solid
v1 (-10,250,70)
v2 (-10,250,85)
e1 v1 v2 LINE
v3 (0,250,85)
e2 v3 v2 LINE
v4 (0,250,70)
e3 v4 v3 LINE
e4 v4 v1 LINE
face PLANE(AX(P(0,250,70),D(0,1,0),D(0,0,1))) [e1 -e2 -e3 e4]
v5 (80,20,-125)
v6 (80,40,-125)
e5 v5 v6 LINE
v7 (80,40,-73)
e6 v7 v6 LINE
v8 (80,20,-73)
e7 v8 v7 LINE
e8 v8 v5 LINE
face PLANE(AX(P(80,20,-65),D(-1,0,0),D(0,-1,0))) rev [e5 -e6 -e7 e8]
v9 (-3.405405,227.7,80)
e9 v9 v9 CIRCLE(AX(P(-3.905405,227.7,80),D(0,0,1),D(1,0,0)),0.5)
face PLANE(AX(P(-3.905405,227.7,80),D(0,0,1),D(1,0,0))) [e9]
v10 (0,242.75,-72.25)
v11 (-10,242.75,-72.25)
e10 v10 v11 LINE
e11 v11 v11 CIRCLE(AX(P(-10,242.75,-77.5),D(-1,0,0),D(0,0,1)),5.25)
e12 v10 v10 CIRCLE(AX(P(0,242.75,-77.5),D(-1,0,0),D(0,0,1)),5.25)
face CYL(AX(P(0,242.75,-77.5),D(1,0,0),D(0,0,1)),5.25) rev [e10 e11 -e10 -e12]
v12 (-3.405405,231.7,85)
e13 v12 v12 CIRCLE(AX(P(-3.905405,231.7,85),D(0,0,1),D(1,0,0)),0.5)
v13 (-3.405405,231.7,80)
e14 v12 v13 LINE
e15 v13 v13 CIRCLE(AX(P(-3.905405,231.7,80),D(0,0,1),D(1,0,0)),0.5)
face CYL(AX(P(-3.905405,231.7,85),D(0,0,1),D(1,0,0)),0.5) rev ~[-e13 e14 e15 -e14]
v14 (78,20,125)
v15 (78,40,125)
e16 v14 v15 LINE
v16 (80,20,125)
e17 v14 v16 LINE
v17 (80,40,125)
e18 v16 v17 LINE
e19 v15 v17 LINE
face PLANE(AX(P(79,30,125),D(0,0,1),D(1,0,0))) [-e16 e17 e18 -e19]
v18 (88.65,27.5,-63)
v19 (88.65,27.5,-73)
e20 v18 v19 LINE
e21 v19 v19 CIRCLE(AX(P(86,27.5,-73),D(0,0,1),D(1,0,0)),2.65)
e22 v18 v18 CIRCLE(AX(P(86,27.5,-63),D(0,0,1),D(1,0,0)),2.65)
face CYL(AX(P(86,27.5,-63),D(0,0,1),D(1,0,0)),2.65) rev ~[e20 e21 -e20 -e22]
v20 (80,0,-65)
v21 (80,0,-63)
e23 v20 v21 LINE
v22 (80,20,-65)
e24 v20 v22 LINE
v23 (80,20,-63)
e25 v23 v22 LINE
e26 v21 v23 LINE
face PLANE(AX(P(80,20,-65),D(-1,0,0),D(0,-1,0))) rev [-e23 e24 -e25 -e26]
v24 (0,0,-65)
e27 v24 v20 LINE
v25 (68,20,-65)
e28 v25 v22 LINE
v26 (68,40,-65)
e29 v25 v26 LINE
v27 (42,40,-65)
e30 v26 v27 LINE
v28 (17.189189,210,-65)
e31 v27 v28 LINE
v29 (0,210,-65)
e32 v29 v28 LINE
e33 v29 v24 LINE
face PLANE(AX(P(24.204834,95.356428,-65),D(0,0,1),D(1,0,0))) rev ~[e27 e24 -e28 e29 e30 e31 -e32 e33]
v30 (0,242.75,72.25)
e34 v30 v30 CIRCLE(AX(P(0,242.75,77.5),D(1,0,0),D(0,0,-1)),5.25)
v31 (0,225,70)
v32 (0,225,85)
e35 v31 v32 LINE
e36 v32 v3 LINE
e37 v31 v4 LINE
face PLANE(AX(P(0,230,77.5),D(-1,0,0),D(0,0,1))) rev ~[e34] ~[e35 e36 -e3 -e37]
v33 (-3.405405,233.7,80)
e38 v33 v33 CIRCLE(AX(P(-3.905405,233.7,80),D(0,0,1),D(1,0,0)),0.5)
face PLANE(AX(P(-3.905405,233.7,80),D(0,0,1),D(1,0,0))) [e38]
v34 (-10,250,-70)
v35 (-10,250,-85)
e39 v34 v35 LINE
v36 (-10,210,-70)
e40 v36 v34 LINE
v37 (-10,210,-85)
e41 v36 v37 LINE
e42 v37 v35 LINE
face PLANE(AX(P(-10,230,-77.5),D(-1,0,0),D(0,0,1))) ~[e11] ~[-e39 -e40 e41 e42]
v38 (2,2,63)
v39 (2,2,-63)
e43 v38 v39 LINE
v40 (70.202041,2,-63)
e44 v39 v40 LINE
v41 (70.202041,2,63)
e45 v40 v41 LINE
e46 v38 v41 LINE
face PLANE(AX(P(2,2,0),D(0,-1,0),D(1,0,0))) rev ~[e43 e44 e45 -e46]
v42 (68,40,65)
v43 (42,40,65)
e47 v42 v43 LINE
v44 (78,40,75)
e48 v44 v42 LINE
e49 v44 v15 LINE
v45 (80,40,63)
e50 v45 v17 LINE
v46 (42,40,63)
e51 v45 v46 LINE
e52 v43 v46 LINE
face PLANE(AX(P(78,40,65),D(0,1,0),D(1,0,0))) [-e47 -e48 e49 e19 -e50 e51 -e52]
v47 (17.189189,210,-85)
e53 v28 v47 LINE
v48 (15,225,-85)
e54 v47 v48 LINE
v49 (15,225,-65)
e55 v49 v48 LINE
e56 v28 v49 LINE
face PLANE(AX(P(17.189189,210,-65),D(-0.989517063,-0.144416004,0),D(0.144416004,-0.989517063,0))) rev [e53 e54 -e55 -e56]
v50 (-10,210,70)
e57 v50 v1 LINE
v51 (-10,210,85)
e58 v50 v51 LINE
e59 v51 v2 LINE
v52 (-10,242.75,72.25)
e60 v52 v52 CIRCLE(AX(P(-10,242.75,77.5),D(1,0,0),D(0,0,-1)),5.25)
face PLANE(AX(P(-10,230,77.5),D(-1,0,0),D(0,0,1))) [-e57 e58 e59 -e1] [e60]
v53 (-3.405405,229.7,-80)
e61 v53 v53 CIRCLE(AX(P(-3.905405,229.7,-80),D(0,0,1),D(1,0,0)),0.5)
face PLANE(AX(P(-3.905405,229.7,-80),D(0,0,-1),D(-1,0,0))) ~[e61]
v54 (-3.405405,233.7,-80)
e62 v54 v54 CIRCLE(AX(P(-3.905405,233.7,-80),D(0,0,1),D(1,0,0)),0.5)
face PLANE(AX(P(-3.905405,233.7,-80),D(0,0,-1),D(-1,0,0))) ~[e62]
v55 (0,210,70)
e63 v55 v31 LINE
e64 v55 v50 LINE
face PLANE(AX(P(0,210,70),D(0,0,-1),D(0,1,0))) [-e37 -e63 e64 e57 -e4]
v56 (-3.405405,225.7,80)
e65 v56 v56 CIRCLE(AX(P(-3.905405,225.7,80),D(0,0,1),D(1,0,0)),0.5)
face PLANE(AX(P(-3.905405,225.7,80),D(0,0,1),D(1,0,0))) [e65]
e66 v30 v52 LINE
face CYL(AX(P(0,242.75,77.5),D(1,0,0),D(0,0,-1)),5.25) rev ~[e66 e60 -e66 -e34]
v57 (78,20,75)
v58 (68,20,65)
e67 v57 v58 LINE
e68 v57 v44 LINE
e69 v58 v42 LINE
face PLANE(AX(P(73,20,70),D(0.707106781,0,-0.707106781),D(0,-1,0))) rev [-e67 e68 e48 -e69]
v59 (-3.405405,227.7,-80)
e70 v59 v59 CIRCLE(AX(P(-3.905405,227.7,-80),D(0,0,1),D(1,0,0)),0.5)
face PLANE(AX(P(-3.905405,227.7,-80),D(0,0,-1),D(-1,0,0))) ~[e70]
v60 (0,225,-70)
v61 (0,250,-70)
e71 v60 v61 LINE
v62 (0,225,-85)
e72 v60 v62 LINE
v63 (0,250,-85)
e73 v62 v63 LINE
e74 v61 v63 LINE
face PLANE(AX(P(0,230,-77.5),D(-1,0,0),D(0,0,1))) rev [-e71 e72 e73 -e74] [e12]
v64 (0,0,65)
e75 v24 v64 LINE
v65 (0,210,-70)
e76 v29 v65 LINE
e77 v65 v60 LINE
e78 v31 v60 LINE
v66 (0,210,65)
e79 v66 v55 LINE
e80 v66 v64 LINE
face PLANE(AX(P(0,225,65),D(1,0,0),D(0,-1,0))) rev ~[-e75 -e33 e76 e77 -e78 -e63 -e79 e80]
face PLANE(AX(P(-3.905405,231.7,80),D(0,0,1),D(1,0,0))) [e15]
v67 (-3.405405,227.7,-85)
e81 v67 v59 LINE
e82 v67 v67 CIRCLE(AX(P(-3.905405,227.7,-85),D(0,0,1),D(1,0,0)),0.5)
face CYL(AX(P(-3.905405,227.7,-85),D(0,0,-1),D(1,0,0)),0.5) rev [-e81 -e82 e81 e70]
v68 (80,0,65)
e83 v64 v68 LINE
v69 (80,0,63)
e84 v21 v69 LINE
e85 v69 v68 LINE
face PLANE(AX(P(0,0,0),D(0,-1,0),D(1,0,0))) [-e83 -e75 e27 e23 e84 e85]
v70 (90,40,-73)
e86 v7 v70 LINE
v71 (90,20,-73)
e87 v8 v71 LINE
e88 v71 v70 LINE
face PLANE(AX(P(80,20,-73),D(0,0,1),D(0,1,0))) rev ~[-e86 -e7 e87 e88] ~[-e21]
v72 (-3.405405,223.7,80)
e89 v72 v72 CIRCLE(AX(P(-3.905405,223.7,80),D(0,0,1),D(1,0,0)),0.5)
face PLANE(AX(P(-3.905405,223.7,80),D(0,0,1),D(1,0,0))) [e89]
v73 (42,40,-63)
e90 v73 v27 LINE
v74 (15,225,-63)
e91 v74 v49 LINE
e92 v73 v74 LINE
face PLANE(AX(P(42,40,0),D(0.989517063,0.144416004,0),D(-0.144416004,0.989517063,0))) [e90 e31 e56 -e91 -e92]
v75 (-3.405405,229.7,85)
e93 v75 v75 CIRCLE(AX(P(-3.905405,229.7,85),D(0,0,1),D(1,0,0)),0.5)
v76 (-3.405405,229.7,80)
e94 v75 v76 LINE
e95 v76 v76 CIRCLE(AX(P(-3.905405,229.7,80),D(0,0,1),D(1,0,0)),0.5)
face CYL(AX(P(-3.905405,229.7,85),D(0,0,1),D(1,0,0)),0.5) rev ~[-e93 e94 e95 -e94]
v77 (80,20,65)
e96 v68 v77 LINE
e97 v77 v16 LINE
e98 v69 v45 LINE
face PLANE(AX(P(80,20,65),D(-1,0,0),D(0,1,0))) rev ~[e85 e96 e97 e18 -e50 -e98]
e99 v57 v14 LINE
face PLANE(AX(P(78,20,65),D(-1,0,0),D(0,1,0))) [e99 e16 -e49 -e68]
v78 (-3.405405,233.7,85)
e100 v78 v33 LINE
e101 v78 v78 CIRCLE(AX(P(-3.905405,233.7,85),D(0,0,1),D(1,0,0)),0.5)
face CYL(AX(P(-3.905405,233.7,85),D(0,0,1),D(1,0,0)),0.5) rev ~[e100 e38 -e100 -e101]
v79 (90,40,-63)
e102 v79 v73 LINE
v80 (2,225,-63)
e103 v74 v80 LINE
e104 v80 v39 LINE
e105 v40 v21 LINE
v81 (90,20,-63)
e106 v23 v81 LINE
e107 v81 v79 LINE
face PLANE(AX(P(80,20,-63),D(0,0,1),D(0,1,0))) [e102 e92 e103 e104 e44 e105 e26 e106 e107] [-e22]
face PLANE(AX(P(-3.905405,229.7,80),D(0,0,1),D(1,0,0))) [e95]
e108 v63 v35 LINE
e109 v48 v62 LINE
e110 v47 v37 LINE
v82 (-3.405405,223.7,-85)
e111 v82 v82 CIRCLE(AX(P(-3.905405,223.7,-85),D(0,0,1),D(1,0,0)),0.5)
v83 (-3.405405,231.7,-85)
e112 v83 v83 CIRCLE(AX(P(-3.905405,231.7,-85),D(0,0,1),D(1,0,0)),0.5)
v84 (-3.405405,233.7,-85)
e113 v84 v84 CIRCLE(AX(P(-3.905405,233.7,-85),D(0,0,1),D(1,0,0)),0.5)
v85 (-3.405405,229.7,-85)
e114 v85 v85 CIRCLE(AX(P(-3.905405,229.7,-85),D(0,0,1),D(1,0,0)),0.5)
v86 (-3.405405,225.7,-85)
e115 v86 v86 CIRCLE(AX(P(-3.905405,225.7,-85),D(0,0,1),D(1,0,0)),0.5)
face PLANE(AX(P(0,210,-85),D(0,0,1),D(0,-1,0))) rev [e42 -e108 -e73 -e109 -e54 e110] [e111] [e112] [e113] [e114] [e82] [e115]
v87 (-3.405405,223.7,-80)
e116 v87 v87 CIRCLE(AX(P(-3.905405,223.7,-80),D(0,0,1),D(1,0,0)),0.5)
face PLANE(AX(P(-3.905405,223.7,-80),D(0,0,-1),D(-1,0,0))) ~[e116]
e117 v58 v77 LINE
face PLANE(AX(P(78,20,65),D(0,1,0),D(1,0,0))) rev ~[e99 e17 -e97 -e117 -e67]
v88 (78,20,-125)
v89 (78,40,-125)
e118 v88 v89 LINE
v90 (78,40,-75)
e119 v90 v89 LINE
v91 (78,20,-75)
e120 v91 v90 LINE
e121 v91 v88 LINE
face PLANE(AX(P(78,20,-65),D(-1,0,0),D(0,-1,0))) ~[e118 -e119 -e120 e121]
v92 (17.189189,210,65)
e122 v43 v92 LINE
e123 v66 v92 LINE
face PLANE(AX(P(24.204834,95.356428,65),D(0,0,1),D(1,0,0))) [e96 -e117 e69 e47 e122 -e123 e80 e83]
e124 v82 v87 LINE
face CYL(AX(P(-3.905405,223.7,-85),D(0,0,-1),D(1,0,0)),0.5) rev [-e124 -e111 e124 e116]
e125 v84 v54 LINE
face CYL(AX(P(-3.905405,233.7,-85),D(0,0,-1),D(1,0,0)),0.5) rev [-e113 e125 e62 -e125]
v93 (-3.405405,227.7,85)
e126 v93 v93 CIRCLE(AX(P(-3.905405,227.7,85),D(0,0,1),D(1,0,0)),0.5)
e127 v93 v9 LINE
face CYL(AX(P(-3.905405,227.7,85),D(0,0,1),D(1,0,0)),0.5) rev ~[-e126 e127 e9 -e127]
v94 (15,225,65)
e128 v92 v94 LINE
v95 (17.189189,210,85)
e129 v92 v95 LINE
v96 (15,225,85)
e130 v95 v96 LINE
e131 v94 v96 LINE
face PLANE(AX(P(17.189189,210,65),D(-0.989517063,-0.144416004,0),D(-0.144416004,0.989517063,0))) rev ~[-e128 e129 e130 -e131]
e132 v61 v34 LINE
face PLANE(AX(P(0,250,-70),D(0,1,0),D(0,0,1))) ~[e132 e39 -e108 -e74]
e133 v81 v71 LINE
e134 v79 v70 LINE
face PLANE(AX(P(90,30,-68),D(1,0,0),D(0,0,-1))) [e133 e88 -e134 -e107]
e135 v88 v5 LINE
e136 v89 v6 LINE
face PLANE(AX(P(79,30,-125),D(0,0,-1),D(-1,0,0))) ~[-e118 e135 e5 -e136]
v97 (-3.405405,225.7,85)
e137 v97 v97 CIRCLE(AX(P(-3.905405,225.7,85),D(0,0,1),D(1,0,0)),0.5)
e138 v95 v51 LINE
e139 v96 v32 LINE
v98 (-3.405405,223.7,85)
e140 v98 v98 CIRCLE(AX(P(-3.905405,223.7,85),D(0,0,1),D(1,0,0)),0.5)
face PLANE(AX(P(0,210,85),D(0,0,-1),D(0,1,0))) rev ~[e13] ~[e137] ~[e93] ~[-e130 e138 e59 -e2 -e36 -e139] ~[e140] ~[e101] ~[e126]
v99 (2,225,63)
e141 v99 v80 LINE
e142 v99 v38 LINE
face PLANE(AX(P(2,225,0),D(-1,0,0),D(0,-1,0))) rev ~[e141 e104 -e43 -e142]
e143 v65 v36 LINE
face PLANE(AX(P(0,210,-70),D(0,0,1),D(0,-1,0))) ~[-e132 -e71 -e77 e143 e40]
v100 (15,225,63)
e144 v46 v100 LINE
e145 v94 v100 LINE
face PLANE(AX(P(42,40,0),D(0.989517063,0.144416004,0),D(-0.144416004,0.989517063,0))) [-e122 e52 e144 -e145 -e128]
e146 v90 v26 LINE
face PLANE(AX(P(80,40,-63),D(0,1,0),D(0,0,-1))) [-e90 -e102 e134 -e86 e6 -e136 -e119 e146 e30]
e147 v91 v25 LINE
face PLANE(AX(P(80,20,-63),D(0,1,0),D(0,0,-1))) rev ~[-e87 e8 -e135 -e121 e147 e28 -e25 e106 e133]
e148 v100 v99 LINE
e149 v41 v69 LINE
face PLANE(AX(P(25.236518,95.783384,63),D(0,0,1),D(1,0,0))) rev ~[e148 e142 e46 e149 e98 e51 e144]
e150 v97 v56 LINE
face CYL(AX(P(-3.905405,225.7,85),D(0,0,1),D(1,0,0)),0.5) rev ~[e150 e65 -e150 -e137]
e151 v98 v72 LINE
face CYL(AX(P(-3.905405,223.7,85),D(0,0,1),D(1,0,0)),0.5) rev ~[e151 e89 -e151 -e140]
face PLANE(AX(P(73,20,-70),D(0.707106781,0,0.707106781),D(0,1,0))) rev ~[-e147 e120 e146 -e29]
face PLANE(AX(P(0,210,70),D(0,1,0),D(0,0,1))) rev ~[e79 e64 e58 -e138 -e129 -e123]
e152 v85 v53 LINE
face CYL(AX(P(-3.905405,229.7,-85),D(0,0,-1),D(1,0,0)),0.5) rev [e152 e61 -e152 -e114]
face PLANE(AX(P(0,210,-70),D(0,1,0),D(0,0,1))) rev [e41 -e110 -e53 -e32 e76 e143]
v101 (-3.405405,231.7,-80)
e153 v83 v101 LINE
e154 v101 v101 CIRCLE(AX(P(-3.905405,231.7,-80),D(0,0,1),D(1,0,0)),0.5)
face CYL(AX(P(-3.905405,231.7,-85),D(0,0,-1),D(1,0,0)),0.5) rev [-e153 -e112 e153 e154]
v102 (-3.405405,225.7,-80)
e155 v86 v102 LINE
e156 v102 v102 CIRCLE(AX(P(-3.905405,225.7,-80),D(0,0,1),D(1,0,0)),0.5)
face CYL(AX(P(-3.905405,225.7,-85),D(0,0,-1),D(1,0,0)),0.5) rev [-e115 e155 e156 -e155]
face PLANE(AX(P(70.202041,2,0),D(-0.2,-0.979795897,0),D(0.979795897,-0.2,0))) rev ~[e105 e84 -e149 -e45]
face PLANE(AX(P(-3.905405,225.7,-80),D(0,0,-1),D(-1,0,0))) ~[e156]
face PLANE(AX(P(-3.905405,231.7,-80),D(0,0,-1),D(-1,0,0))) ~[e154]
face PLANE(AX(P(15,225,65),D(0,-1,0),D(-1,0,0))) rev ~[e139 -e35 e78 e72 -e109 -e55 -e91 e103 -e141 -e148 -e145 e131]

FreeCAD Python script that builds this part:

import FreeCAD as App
import Part
import Sketcher

V = App.Vector


def edges_at(feature, points):
    """Names of the edges that pass closest to the given points."""
    edges = feature.Shape.Edges
    near = lambda p: min(range(len(edges)), key=lambda i: edges[i].distToShape(Part.Vertex(*p))[0])
    return sorted({f"Edge{near(p) + 1}" for p in points})


def add_polygon(sketch, points):
    """Adds a closed chain of lines whose ends are joined by coincident constraints."""
    first, n = sketch.GeometryCount, len(points)
    for a, b in zip(points, points[1:] + points[:1]):
        sketch.addGeometry(Part.LineSegment(App.Vector(*a, 0), App.Vector(*b, 0)), False)
    for i in range(n):
        sketch.addConstraint(Sketcher.Constraint("Coincident", first + i, 2, first + (i + 1) % n, 1))

doc = App.newDocument("Part")
body = doc.addObject("PartDesign::Body", "Body")

# Sketch on XY plane
sketch1 = body.newObject("Sketcher::SketchObject", "Sketch")
sketch1.AttachmentSupport = (doc.getObject("XY_Plane"), [""])
sketch1.MapMode = "FlatFace"
add_polygon(sketch1, [(15, 225), (0, 225), (0, 0), (80, 0), (80, 40), (42, 40)])  # lines 0-5
sketch1.addConstraint(Sketcher.Constraint("Horizontal", 0))
sketch1.addConstraint(Sketcher.Constraint("Vertical", 1))
sketch1.addConstraint(Sketcher.Constraint("Horizontal", 2))
sketch1.addConstraint(Sketcher.Constraint("Vertical", 3))
sketch1.addConstraint(Sketcher.Constraint("Horizontal", 4))
sketch1.addConstraint(Sketcher.Constraint("Coincident", 1, 2, -1, 1))
sketch1.addConstraint(Sketcher.Constraint("DistanceX", 0, 2, 0, 1, 15.0))
sketch1.addConstraint(Sketcher.Constraint("DistanceX", 2, 1, 2, 2, 80.0))
sketch1.addConstraint(Sketcher.Constraint("DistanceX", 4, 2, 4, 1, 38.0))
sketch1.addConstraint(Sketcher.Constraint("DistanceY", 1, 2, 1, 1, 225.0))
sketch1.addConstraint(Sketcher.Constraint("DistanceY", 3, 1, 3, 2, 40.0))
pad1 = body.newObject("PartDesign::Pad", "Pad")
pad1.Profile = sketch1
pad1.Length = 130
pad1.Midplane = True

# Sketch on XY plane
sketch2 = body.newObject("Sketcher::SketchObject", "Sketch001")
sketch2.AttachmentSupport = (doc.getObject("XY_Plane"), [""])
sketch2.MapMode = "FlatFace"
add_polygon(sketch2, [(2, 2), (70, 2), (80, 0), (80, 40), (42, 40), (15, 225), (2, 225)])  # lines 0-6
sketch2.addConstraint(Sketcher.Constraint("Horizontal", 0))
sketch2.addConstraint(Sketcher.Constraint("Vertical", 2))
sketch2.addConstraint(Sketcher.Constraint("Horizontal", 3))
sketch2.addConstraint(Sketcher.Constraint("Horizontal", 5))
sketch2.addConstraint(Sketcher.Constraint("Vertical", 6))
sketch2.addConstraint(Sketcher.Constraint("PointOnObject", 1, 2, -1))
sketch2.addConstraint(Sketcher.Constraint("DistanceX", 3, 2, 3, 1, 38.0))
sketch2.addConstraint(Sketcher.Constraint("DistanceX", 5, 2, 5, 1, 13.0))
sketch2.addConstraint(Sketcher.Constraint("DistanceY", 2, 1, 2, 2, 40.0))
sketch2.addConstraint(Sketcher.Constraint("DistanceY", 6, 2, 6, 1, 223.0))
sketch2.addConstraint(Sketcher.Constraint("Distance", 1, 10.0))
sketch2.addConstraint(Sketcher.Constraint("DistanceY", -1, 1, 0, 2, 2.0))
sketch2.addConstraint(Sketcher.Constraint("DistanceX", -1, 1, 1, 2, 80.0))
sketch2.addConstraint(Sketcher.Constraint("DistanceX", -1, 1, 4, 2, 15.0))
pocket1 = body.newObject("PartDesign::Pocket", "Pocket")
pocket1.Profile = sketch2
pocket1.Length = 126
pocket1.Midplane = True

# Sketch on XY plane
sketch3 = body.newObject("Sketcher::SketchObject", "Sketch002")
sketch3.AttachmentSupport = (doc.getObject("XY_Plane"), [""])
sketch3.MapMode = "FlatFace"
sketch3.AttachmentOffset = App.Placement(V(0, 0, 65), App.Rotation())
add_polygon(sketch3, [(17, 210), (15, 225), (0, 225), (0, 210)])  # lines 0-3
sketch3.addConstraint(Sketcher.Constraint("Horizontal", 1))
sketch3.addConstraint(Sketcher.Constraint("Vertical", 2))
sketch3.addConstraint(Sketcher.Constraint("Horizontal", 3))
sketch3.addConstraint(Sketcher.Constraint("PointOnObject", 1, 2, -2))
sketch3.addConstraint(Sketcher.Constraint("Equal", 1, 2))
sketch3.addConstraint(Sketcher.Constraint("DistanceX", 1, 2, 1, 1, 15.0))
sketch3.addConstraint(Sketcher.Constraint("DistanceY", -1, 1, 0, 2, 225.0))
sketch3.addConstraint(Sketcher.Constraint("DistanceX", 3, 1, 3, 2, 17.189189))
pad2 = body.newObject("PartDesign::Pad", "Pad001")
pad2.Profile = sketch3
pad2.Length = 20

# Sketch on YZ plane
sketch4 = body.newObject("Sketcher::SketchObject", "Sketch003")
sketch4.AttachmentSupport = (doc.getObject("YZ_Plane"), [""])
sketch4.MapMode = "FlatFace"
add_polygon(sketch4, [(250, 70), (210, 70), (210, 85), (250, 85)])  # lines 0-3
sketch4.addConstraint(Sketcher.Constraint("Horizontal", 0))
sketch4.addConstraint(Sketcher.Constraint("Vertical", 1))
sketch4.addConstraint(Sketcher.Constraint("Horizontal", 2))
sketch4.addConstraint(Sketcher.Constraint("Vertical", 3))
sketch4.addConstraint(Sketcher.Constraint("DistanceX", 0, 2, 0, 1, 40.0))
sketch4.addConstraint(Sketcher.Constraint("DistanceY", 1, 1, 1, 2, 15.0))
sketch4.addConstraint(Sketcher.Constraint("DistanceX", -1, 1, 0, 2, 210.0))
sketch4.addConstraint(Sketcher.Constraint("DistanceY", -1, 1, 0, 2, 70.0))
pad3 = body.newObject("PartDesign::Pad", "Pad002")
pad3.Profile = sketch4
pad3.Length = 10
pad3.Reversed = True

# Sketch on XY plane
sketch5 = body.newObject("Sketcher::SketchObject", "Sketch004")
sketch5.AttachmentSupport = (doc.getObject("XY_Plane"), [""])
sketch5.MapMode = "FlatFace"
sketch5.AttachmentOffset = App.Placement(V(0, 0, 85), App.Rotation())
sketch5.addGeometry(Part.Circle(V(-3.9, 231.7, 0), V(0, 0, 1), 0.5), False)
sketch5.addGeometry(Part.Circle(V(-3.9, 233.7, 0), V(0, 0, 1), 0.5), False)
sketch5.addGeometry(Part.Circle(V(-3.9, 229.7, 0), V(0, 0, 1), 0.5), False)
sketch5.addGeometry(Part.Circle(V(-3.9, 227.7, 0), V(0, 0, 1), 0.5), False)
sketch5.addGeometry(Part.Circle(V(-3.9, 225.7, 0), V(0, 0, 1), 0.5), False)
sketch5.addGeometry(Part.Circle(V(-3.9, 223.7, 0), V(0, 0, 1), 0.5), False)
sketch5.addConstraint(Sketcher.Constraint("Equal", 0, 1))
sketch5.addConstraint(Sketcher.Constraint("Equal", 1, 2))
sketch5.addConstraint(Sketcher.Constraint("Equal", 2, 3))
sketch5.addConstraint(Sketcher.Constraint("Equal", 3, 4))
sketch5.addConstraint(Sketcher.Constraint("Equal", 4, 5))
sketch5.addConstraint(Sketcher.Constraint("Vertical", 0, 3, 1, 3))
sketch5.addConstraint(Sketcher.Constraint("Vertical", 1, 3, 2, 3))
sketch5.addConstraint(Sketcher.Constraint("Vertical", 2, 3, 3, 3))
sketch5.addConstraint(Sketcher.Constraint("Vertical", 3, 3, 4, 3))
sketch5.addConstraint(Sketcher.Constraint("Vertical", 4, 3, 5, 3))
sketch5.addConstraint(Sketcher.Constraint("Diameter", 0, 1.0))
sketch5.addConstraint(Sketcher.Constraint("DistanceY", 0, 3, 1, 3, 2.0))
sketch5.addConstraint(Sketcher.Constraint("DistanceY", 2, 3, 0, 3, 2.0))
sketch5.addConstraint(Sketcher.Constraint("DistanceY", 3, 3, 2, 3, 2.0))
sketch5.addConstraint(Sketcher.Constraint("DistanceY", 4, 3, 3, 3, 2.0))
sketch5.addConstraint(Sketcher.Constraint("DistanceY", 5, 3, 4, 3, 2.0))
sketch5.addConstraint(Sketcher.Constraint("DistanceY", -1, 1, 0, 3, 231.7))
sketch5.addConstraint(Sketcher.Constraint("DistanceX", 0, 3, -1, 1, 3.905405))
pocket2 = body.newObject("PartDesign::Pocket", "Pocket001")
pocket2.Profile = sketch5
pocket2.Length = 5

# Sketch on YZ plane
sketch6 = body.newObject("Sketcher::SketchObject", "Sketch005")
sketch6.AttachmentSupport = (doc.getObject("YZ_Plane"), [""])
sketch6.MapMode = "FlatFace"
sketch6.addGeometry(Part.Circle(V(243, 78, 0), V(0, 0, 1), 5), False)
sketch6.addConstraint(Sketcher.Constraint("Diameter", 0, 10.5))
sketch6.addConstraint(Sketcher.Constraint("DistanceY", -1, 1, 0, 3, 77.5))
sketch6.addConstraint(Sketcher.Constraint("DistanceX", -1, 1, 0, 3, 242.75))
pocket3 = body.newObject("PartDesign::Pocket", "Pocket002")
pocket3.Profile = sketch6
pocket3.Length = 10

# Sketch on XY plane
sketch7 = body.newObject("Sketcher::SketchObject", "Sketch006")
sketch7.AttachmentSupport = (doc.getObject("XY_Plane"), [""])
sketch7.MapMode = "FlatFace"
sketch7.AttachmentOffset = App.Placement(V(0, 0, 65), App.Rotation())
add_polygon(sketch7, [(78, 40), (78, 20), (80, 20), (80, 40)])  # lines 0-3
sketch7.addConstraint(Sketcher.Constraint("Vertical", 0))
sketch7.addConstraint(Sketcher.Constraint("Horizontal", 1))
sketch7.addConstraint(Sketcher.Constraint("Vertical", 2))
sketch7.addConstraint(Sketcher.Constraint("Horizontal", 3))
sketch7.addConstraint(Sketcher.Constraint("DistanceX", 1, 1, 1, 2, 2.0))
sketch7.addConstraint(Sketcher.Constraint("DistanceY", 0, 2, 0, 1, 20.0))
sketch7.addConstraint(Sketcher.Constraint("DistanceX", -1, 1, 0, 2, 78.0))
sketch7.addConstraint(Sketcher.Constraint("DistanceY", -1, 1, 0, 2, 20.0))
pad4 = body.newObject("PartDesign::Pad", "Pad003")
pad4.Profile = sketch7
pad4.Length = 60
doc.recompute()

chamfer = body.newObject("PartDesign::Chamfer", "Chamfer")
chamfer.Base = (pad4, edges_at(pad4, [(78, 30, 65)]))
chamfer.Size = 10
body2 = doc.addObject("PartDesign::Body", "Body001")
doc.recompute()

body2.BaseFeature = body
doc.recompute()

mirroring = doc.addObject("Part::Mirroring", "Mirroring")
mirroring.Source = body
mirroring.Base = V(0, 0, 0)
mirroring.Normal = V(0, 0, -1)
body3 = doc.addObject("PartDesign::Body", "Body002")
body3.BaseFeature = mirroring
boolean = body2.newObject("PartDesign::Boolean", "Boolean")
boolean.Type = "Fuse"
boolean.addObjects([body3])
doc.recompute()

# Sketch on YZ plane
sketch8 = body2.newObject("Sketcher::SketchObject", "Sketch007")
sketch8.AttachmentSupport = (doc.getObject("YZ_Plane001"), [""])
sketch8.MapMode = "FlatFace"
sketch8.AttachmentOffset = App.Placement(V(0, 0, 80), App.Rotation())
add_polygon(sketch8, [(40, -63), (20, -63), (20, -73), (40, -73)])  # lines 0-3
sketch8.addConstraint(Sketcher.Constraint("Horizontal", 0))
sketch8.addConstraint(Sketcher.Constraint("Vertical", 1))
sketch8.addConstraint(Sketcher.Constraint("Horizontal", 2))
sketch8.addConstraint(Sketcher.Constraint("Vertical", 3))
sketch8.addConstraint(Sketcher.Constraint("DistanceX", 0, 2, 0, 1, 20.0))
sketch8.addConstraint(Sketcher.Constraint("DistanceY", 1, 2, 1, 1, 10.0))
sketch8.addConstraint(Sketcher.Constraint("DistanceX", -1, 1, 0, 2, 20.0))
sketch8.addConstraint(Sketcher.Constraint("DistanceY", 0, 2, -1, 1, 63.0))
pad5 = body2.newObject("PartDesign::Pad", "Pad004")
pad5.Profile = sketch8
pad5.Length = 10

# Sketch on XY plane
sketch9 = body2.newObject("Sketcher::SketchObject", "Sketch008")
sketch9.AttachmentSupport = (doc.getObject("XY_Plane001"), [""])
sketch9.MapMode = "FlatFace"
sketch9.AttachmentOffset = App.Placement(V(0, 0, -63), App.Rotation())
sketch9.addGeometry(Part.Circle(V(86, 27.5, 0), V(0, 0, 1), 2.6), False)
sketch9.addConstraint(Sketcher.Constraint("Diameter", 0, 5.3))
sketch9.addConstraint(Sketcher.Constraint("DistanceX", -1, 1, 0, 3, 86.0))
sketch9.addConstraint(Sketcher.Constraint("DistanceY", -1, 1, 0, 3, 27.5))
pocket4 = body2.newObject("PartDesign::Pocket", "Pocket003")
pocket4.Profile = sketch9
pocket4.Length = 10
mirroring.Visibility = False

doc.recompute()
